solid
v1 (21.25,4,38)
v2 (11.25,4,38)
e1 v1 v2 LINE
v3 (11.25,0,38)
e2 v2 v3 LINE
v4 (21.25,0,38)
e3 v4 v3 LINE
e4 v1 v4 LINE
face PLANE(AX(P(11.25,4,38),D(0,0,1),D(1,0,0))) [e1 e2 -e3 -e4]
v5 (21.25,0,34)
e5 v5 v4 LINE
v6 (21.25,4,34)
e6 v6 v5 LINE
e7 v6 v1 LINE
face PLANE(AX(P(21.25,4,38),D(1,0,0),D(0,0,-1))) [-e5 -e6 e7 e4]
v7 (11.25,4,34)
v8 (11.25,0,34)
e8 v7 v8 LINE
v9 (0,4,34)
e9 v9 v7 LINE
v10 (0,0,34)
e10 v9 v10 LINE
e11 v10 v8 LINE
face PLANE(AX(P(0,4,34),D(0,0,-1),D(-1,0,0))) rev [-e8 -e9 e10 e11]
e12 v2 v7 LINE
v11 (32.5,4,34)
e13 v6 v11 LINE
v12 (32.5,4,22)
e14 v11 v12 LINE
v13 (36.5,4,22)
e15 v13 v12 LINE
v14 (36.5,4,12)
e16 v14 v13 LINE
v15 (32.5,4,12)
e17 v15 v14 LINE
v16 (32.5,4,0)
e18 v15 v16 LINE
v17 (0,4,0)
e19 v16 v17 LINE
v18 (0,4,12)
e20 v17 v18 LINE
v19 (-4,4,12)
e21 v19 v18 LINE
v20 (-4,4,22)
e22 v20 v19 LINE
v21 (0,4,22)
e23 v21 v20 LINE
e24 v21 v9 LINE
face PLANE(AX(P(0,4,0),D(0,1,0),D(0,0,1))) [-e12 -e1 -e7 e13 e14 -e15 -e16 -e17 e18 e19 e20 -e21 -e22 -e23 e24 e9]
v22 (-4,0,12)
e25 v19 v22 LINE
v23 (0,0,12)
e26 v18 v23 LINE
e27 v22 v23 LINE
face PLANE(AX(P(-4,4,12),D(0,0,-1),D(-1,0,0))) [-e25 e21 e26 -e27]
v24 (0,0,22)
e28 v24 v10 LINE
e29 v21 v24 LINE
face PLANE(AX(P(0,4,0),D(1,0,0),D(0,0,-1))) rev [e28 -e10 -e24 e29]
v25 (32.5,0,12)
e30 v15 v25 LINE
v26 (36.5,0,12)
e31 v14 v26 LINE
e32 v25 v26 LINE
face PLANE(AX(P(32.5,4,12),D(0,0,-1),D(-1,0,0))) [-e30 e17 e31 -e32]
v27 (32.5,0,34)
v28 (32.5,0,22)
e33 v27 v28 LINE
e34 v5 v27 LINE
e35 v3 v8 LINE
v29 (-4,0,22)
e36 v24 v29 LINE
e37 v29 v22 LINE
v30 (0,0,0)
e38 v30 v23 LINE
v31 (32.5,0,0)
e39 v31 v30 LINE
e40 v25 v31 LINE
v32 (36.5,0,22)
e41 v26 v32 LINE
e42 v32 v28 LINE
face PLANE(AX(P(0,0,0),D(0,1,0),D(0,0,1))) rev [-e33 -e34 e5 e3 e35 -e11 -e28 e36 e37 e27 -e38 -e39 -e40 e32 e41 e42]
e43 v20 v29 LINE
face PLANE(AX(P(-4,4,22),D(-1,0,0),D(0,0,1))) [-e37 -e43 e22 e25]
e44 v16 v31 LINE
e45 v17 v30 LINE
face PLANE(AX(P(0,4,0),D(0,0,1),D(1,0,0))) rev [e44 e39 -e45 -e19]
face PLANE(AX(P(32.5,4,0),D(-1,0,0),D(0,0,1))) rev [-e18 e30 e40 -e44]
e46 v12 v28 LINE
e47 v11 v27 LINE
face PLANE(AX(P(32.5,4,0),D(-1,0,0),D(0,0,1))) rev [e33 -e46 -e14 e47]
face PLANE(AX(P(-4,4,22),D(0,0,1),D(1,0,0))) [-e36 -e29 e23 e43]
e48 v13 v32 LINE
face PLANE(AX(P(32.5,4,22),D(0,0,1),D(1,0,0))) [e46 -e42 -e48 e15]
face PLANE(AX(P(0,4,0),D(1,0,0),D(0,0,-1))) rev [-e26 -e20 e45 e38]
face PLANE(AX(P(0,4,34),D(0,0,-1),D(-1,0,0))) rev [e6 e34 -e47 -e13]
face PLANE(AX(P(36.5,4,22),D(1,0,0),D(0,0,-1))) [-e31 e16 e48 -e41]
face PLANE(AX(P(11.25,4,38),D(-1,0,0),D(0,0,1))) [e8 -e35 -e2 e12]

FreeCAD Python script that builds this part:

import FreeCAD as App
import Part
import Sketcher

V = App.Vector
Q = App.Units.Quantity

doc = App.newDocument("Part")
body = doc.addObject("PartDesign::Body", "Body")

# Sketch on XZ plane
sketch1 = body.newObject("Sketcher::SketchObject", "Sketch")
sketch1.AttachmentSupport = (doc.getObject("XZ_Plane"), [""])
sketch1.MapMode = "FlatFace"
sketch1.addGeometry([
    Part.LineSegment(V(0, 0, 0), V(0, 34, 0)),
    Part.LineSegment(V(0, 34, 0), V(32.5, 34, 0)),
    Part.LineSegment(V(32.5, 34, 0), V(32.5, 0, 0)),
    Part.LineSegment(V(32.5, 0, 0), V(0, 0, 0)),
], False)
sketch1.addConstraint([
    Sketcher.Constraint("Coincident", 0, 2, 1, 1),
    Sketcher.Constraint("Coincident", 1, 2, 2, 1),
    Sketcher.Constraint("Coincident", 2, 2, 3, 1),
    Sketcher.Constraint("Coincident", 3, 2, 0, 1),
    Sketcher.Constraint("Vertical", 0),
    Sketcher.Constraint("Horizontal", 1),
    Sketcher.Constraint("Vertical", 2),
    Sketcher.Constraint("Horizontal", 3),
    Sketcher.Constraint("Coincident", 3, 2, -1, 1),
    Sketcher.Constraint("DistanceY", 0, 1, 0, 2, Q("34 mm")),
    Sketcher.Constraint("DistanceX", 1, 1, 1, 2, Q("32.5 mm")),
])
pad1 = body.newObject("PartDesign::Pad", "Pad")
pad1.Profile = sketch1
pad1.Length = 4
pad1.Reversed = True

# Sketch on XZ plane
sketch2 = body.newObject("Sketcher::SketchObject", "Sketch001")
sketch2.AttachmentSupport = (doc.getObject("XZ_Plane"), [""])
sketch2.MapMode = "FlatFace"
sketch2.addGeometry([
    Part.LineSegment(V(11.25, 38, 0), V(11.25, 34, 0)),  # 0
    Part.LineSegment(V(11.25, 34, 0), V(21.25, 34, 0)),  # 1
    Part.LineSegment(V(21.25, 34, 0), V(21.25, 38, 0)),  # 2
    Part.LineSegment(V(21.25, 38, 0), V(11.25, 38, 0)),  # 3
    Part.LineSegment(V(32.5, 22, 0), V(32.5, 12, 0)),  # 4
    Part.LineSegment(V(32.5, 12, 0), V(36.5, 12, 0)),  # 5
    Part.LineSegment(V(36.5, 12, 0), V(36.5, 22, 0)),  # 6
    Part.LineSegment(V(36.5, 22, 0), V(32.5, 22, 0)),  # 7
    Part.LineSegment(V(-4, 22, 0), V(-4, 12, 0)),  # 8
    Part.LineSegment(V(-4, 12, 0), V(0, 12, 0)),  # 9
    Part.LineSegment(V(0, 12, 0), V(0, 22, 0)),  # 10
    Part.LineSegment(V(0, 22, 0), V(-4, 22, 0)),  # 11
], False)
sketch2.addConstraint([
    Sketcher.Constraint("Coincident", 0, 2, 1, 1),
    Sketcher.Constraint("Coincident", 1, 2, 2, 1),
    Sketcher.Constraint("Coincident", 2, 2, 3, 1),
    Sketcher.Constraint("Coincident", 3, 2, 0, 1),
    Sketcher.Constraint("Coincident", 4, 2, 5, 1),
    Sketcher.Constraint("Coincident", 5, 2, 6, 1),
    Sketcher.Constraint("Coincident", 6, 2, 7, 1),
    Sketcher.Constraint("Coincident", 7, 2, 4, 1),
    Sketcher.Constraint("Coincident", 8, 2, 9, 1),
    Sketcher.Constraint("Coincident", 9, 2, 10, 1),
    Sketcher.Constraint("Coincident", 10, 2, 11, 1),
    Sketcher.Constraint("Coincident", 11, 2, 8, 1),
    Sketcher.Constraint("Vertical", 0),
    Sketcher.Constraint("Horizontal", 1),
    Sketcher.Constraint("Vertical", 2),
    Sketcher.Constraint("Horizontal", 3),
    Sketcher.Constraint("Vertical", 4),
    Sketcher.Constraint("Horizontal", 5),
    Sketcher.Constraint("Vertical", 6),
    Sketcher.Constraint("Horizontal", 7),
    Sketcher.Constraint("Vertical", 8),
    Sketcher.Constraint("Horizontal", 9),
    Sketcher.Constraint("Vertical", 10),
    Sketcher.Constraint("Horizontal", 11),
    Sketcher.Constraint("PointOnObject", 9, 2, -2),
    Sketcher.Constraint("Horizontal", 5, 2, 8, 2),
    Sketcher.Constraint("Horizontal", 7, 2, 10, 2),
    Sketcher.Constraint("Equal", 7, 9),
    Sketcher.Constraint("Equal", 11, 0),
    Sketcher.Constraint("Equal", 3, 4),
    Sketcher.Constraint("DistanceX", 1, 1, 1, 2, Q("10 mm")),
    Sketcher.Constraint("DistanceX", 5, 1, 5, 2, Q("4 mm")),
    Sketcher.Constraint("DistanceY", -1, 1, 0, 2, Q("34 mm")),
    Sketcher.Constraint("DistanceY", -1, 1, 4, 2, Q("12 mm")),
    Sketcher.Constraint("DistanceX", -1, 1, 4, 2, Q("32.5 mm")),
    Sketcher.Constraint("DistanceX", -1, 1, 0, 2, Q("11.25 mm")),
])
pad2 = body.newObject("PartDesign::Pad", "Pad001")
pad2.Profile = sketch2
pad2.Type = "UpToLast"
pad2.Reversed = True

doc.recompute()
